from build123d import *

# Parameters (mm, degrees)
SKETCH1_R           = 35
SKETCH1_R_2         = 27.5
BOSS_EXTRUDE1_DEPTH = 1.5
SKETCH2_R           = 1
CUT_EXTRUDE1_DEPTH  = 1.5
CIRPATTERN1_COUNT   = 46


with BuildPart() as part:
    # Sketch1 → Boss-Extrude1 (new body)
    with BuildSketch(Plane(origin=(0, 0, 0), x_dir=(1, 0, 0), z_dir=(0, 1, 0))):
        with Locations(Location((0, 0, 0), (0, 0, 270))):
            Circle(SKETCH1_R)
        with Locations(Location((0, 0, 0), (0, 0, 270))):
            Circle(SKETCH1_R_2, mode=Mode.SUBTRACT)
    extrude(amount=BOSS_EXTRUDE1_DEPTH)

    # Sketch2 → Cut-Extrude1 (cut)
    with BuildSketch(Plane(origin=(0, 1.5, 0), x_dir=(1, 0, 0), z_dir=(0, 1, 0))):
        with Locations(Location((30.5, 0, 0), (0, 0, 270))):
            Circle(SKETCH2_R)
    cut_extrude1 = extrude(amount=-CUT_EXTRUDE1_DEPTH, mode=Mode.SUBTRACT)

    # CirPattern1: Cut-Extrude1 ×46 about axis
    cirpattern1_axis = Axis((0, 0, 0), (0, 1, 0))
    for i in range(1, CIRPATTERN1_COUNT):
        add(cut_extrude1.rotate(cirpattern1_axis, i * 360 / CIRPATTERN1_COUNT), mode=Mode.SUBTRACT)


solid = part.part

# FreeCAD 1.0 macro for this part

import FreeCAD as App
import Part
import Sketcher

V = App.Vector

doc = App.newDocument("Part")
body = doc.addObject("PartDesign::Body", "Body")

sketch1 = body.newObject("Sketcher::SketchObject", "Sketch")
sketch1.AttachmentSupport = (doc.getObject("XZ_Plane"), [""])
sketch1.MapMode = "FlatFace"
sketch1.addGeometry([
    Part.Circle(V(0, 0, 0), V(0, 0, 1), 35),
    Part.Circle(V(0, 0, 0), V(0, 0, 1), 28),
], False)
sketch1.addConstraint([
    Sketcher.Constraint("Coincident", 0, 3, -1, 1),
    Sketcher.Constraint("Coincident", 1, 3, -1, 1),
    Sketcher.Constraint("Diameter", 0, 70.0),
    Sketcher.Constraint("Diameter", 1, 55.0),
])
pad1 = body.newObject("PartDesign::Pad", "Pad")
pad1.Profile = sketch1
pad1.Length = 1.5
pad1.Reversed = True

sketch2 = body.newObject("Sketcher::SketchObject", "Sketch001")
sketch2.AttachmentSupport = (doc.getObject("XZ_Plane"), [""])
sketch2.MapMode = "FlatFace"
sketch2.AttachmentOffset = App.Placement(V(0, 0, -1.5), App.Rotation())
sketch2.addGeometry(Part.Circle(V(30.5, 0, 0), V(0, 0, 1), 1), False)
sketch2.addConstraint([
    Sketcher.Constraint("PointOnObject", 0, 3, -1),
    Sketcher.Constraint("Diameter", 0, 2.0),
    Sketcher.Constraint("DistanceX", -1, 1, 0, 3, 30.5),
])
pocket1 = body.newObject("PartDesign::Pocket", "Pocket")
pocket1.Profile = sketch2
pocket1.Length = 1.5
pocket1.Reversed = True
doc.recompute()

polarpattern = body.newObject("PartDesign::PolarPattern", "PolarPattern")
polarpattern.Originals = [pocket1]
polarpattern.Axis = (doc.getObject("Y_Axis"), [""])
polarpattern.Angle = 360
polarpattern.Occurrences = 46
body.Tip = polarpattern

doc.recompute()
